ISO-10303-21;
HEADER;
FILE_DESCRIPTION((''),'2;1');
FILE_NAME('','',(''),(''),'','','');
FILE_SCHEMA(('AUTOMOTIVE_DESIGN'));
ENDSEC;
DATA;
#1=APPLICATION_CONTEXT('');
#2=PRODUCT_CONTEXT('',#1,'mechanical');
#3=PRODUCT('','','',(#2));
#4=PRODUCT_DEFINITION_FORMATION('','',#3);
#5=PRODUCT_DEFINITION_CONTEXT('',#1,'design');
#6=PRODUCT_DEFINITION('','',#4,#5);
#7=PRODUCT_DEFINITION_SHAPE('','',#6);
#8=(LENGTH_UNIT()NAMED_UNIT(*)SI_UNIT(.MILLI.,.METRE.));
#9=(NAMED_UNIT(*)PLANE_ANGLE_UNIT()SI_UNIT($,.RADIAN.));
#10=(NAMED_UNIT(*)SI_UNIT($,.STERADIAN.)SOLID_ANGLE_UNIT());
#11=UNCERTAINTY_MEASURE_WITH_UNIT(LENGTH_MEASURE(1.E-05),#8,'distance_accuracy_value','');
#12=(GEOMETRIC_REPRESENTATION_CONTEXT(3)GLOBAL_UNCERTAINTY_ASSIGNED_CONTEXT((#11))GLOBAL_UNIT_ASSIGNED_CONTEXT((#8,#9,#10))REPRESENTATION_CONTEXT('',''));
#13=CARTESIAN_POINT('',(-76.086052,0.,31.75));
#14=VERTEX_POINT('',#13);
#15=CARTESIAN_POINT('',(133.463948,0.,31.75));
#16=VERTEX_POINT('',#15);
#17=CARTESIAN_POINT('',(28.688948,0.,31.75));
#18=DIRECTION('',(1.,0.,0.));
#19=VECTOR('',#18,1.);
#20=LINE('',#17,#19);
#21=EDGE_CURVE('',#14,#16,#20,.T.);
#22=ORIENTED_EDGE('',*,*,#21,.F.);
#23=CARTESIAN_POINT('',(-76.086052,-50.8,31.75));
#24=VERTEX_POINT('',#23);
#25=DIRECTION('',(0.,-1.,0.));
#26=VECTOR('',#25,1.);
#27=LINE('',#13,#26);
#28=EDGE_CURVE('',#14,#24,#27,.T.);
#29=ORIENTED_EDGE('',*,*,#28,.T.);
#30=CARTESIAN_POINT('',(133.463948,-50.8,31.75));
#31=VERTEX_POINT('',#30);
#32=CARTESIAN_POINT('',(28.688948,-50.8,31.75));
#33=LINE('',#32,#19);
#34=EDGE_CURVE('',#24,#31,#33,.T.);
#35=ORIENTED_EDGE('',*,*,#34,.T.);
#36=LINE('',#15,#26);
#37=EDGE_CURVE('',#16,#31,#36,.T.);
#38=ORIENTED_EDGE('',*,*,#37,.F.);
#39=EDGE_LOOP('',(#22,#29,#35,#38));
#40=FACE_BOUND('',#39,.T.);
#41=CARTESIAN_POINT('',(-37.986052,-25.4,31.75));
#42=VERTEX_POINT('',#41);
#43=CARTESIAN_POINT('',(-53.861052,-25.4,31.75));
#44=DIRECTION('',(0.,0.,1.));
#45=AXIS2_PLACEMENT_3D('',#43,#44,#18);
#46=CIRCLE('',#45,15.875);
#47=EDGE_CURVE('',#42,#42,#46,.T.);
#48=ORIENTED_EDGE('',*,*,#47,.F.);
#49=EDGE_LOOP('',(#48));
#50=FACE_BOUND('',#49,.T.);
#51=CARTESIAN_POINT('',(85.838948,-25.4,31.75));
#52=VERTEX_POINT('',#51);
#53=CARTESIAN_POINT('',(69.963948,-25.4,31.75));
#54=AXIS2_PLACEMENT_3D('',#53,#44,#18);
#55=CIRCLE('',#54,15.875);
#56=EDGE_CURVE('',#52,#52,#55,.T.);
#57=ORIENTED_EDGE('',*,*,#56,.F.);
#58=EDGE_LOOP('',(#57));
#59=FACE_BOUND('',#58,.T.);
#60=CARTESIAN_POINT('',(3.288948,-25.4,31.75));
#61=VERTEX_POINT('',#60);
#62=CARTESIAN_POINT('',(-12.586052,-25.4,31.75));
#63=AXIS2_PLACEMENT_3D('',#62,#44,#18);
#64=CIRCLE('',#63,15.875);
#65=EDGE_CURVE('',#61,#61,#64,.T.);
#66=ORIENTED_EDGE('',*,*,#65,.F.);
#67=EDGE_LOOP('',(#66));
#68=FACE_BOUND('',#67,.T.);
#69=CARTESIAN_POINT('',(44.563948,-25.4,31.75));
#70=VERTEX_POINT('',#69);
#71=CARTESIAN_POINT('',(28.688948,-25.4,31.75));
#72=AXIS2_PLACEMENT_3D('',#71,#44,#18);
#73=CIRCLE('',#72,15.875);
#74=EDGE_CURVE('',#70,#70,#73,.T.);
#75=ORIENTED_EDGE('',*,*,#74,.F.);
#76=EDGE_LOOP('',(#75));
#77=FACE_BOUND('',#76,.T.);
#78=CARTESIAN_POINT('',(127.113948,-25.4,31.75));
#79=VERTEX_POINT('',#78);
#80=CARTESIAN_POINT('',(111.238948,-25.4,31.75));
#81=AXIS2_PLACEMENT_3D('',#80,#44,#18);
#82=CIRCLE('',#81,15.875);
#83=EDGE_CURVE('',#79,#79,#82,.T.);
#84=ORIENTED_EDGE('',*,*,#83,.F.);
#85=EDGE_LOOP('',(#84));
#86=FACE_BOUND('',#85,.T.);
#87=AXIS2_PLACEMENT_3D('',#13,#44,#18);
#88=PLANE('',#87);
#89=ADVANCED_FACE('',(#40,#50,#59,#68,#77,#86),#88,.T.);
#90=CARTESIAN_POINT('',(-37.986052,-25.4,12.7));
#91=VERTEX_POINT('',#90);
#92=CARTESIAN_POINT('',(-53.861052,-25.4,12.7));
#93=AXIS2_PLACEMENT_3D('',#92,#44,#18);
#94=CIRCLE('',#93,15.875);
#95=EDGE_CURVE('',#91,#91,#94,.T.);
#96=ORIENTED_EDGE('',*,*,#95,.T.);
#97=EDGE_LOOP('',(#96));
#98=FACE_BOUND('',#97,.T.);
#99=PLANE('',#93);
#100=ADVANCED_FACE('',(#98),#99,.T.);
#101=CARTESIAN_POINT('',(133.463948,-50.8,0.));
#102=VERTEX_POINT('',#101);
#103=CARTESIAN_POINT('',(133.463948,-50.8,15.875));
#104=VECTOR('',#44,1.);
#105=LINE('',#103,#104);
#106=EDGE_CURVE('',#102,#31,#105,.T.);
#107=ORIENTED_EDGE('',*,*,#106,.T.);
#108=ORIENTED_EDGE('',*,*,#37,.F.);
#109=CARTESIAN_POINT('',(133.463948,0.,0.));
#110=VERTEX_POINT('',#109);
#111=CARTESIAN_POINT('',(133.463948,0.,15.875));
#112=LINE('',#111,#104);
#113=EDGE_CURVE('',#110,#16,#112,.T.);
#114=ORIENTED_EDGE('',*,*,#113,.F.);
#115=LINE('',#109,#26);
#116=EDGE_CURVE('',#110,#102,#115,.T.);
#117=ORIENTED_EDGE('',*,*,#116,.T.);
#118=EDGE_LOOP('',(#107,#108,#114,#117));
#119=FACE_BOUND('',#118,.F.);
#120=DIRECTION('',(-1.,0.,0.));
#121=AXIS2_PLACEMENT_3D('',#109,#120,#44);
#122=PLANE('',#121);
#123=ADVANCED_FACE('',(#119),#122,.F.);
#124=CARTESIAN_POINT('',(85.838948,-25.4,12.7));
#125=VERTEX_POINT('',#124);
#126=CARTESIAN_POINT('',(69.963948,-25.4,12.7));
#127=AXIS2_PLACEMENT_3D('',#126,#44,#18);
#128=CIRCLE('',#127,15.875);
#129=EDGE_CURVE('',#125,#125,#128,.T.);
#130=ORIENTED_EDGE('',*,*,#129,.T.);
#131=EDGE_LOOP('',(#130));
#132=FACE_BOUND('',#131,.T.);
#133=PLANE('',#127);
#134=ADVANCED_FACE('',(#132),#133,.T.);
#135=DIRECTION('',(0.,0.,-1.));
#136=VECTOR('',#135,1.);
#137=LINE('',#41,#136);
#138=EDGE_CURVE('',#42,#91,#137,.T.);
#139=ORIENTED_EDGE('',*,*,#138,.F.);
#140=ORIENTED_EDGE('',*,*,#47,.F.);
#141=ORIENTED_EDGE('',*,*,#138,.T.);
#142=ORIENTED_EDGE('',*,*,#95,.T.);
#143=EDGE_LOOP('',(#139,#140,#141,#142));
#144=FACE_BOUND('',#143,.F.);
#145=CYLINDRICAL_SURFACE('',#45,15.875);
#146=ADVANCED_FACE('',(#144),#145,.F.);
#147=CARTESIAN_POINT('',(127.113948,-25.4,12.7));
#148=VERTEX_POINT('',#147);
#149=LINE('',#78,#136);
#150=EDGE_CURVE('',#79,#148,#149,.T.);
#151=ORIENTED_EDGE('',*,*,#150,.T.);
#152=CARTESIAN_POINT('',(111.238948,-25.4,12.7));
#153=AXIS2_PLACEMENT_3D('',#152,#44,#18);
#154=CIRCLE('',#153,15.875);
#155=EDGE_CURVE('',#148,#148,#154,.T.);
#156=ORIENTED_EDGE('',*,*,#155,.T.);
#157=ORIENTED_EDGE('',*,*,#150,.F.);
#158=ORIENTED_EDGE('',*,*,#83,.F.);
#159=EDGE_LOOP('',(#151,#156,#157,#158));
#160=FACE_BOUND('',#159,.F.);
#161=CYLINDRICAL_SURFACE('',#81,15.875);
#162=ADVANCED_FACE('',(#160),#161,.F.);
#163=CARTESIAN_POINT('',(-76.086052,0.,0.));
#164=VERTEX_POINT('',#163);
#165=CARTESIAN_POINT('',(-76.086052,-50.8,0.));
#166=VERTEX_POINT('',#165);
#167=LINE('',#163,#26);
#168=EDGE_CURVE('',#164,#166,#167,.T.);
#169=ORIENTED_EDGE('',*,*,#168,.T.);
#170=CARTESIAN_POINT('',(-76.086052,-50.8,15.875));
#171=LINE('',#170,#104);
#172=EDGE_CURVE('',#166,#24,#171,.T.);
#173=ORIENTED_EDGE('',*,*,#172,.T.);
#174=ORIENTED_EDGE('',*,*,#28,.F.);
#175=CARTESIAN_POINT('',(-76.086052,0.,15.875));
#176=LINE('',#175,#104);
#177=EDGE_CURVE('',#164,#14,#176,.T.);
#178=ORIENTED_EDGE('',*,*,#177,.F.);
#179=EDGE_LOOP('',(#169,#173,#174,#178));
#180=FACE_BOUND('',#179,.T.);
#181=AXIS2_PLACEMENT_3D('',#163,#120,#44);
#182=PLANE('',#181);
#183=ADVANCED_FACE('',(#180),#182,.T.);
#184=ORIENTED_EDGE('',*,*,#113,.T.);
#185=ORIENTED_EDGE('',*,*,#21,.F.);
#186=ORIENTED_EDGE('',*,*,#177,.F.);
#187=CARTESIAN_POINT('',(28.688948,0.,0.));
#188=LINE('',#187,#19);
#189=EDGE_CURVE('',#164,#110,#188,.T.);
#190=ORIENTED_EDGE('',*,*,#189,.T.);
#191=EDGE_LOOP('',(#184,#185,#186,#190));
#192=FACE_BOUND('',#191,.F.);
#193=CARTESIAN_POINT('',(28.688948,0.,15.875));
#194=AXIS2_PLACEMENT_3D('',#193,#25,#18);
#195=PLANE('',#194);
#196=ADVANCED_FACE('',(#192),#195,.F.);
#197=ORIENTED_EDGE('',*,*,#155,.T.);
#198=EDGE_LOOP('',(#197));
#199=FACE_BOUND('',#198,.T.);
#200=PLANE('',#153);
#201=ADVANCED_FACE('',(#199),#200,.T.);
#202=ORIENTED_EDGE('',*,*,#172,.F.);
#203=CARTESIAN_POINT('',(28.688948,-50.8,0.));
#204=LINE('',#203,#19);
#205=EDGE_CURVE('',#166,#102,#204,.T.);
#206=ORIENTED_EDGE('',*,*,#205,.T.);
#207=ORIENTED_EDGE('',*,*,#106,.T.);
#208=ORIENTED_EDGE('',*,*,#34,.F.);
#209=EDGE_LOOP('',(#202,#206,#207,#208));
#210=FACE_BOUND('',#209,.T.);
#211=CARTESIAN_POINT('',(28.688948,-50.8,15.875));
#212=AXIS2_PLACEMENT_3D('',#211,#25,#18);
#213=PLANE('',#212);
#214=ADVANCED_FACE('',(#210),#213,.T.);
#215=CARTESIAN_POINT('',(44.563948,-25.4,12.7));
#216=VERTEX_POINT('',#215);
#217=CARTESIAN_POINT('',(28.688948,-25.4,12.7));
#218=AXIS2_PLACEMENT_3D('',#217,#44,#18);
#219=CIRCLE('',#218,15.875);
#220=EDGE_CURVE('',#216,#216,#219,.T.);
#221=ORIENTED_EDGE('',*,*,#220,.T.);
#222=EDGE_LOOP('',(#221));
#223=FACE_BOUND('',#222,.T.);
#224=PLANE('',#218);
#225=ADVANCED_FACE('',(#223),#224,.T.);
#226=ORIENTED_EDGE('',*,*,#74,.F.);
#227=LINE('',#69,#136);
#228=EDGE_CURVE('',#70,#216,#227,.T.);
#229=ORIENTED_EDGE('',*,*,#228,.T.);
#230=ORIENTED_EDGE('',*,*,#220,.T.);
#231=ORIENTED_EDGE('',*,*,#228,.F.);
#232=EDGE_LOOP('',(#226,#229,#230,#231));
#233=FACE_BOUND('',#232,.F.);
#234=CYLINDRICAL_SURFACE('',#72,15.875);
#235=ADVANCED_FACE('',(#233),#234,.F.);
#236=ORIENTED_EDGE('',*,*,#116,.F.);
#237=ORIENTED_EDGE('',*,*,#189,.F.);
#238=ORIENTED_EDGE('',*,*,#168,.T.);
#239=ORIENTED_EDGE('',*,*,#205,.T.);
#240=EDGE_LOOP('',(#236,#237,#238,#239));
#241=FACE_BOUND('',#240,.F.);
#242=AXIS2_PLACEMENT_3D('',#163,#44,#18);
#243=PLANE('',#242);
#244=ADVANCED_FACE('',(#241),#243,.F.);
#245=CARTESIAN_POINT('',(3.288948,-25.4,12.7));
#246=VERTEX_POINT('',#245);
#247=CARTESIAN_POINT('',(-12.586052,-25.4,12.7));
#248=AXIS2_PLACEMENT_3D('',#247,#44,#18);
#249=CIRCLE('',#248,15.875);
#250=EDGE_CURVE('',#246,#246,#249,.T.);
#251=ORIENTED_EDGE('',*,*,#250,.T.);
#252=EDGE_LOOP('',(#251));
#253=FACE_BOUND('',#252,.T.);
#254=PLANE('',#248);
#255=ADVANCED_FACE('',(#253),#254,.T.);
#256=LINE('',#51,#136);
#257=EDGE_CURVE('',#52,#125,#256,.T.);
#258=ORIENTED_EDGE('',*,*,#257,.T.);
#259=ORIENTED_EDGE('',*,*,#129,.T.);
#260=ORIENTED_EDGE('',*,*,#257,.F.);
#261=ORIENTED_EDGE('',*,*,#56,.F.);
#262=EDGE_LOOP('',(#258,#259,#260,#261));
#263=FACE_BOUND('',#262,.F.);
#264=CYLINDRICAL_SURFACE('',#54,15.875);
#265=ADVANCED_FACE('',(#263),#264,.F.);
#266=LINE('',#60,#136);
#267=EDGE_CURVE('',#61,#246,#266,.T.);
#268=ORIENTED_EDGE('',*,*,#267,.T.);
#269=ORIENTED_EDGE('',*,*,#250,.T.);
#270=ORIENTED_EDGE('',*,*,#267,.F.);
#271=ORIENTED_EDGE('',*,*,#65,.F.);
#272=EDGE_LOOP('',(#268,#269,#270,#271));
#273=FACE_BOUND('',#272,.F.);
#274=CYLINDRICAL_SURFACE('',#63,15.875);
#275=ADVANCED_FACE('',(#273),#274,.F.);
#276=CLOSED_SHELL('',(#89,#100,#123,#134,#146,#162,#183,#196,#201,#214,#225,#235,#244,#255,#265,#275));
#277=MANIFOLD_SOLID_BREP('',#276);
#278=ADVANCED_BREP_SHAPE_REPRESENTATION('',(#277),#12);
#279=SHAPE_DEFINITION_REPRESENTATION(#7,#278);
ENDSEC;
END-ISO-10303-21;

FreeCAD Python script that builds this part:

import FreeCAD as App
import Part
import Sketcher
from FreeCAD import Vector
Q = App.Units.Quantity


def add_polygon(sketch, points):
    """Adds a closed chain of lines whose ends are joined by coincident constraints."""
    first, n = sketch.GeometryCount, len(points)
    for a, b in zip(points, points[1:] + points[:1]):
        sketch.addGeometry(Part.LineSegment(App.Vector(*a, 0), App.Vector(*b, 0)), False)
    for i in range(n):
        sketch.addConstraint(Sketcher.Constraint("Coincident", first + i, 2, first + (i + 1) % n, 1))

doc = App.newDocument("Part")
body = doc.addObject("PartDesign::Body", "Body")

sketch1 = body.newObject("Sketcher::SketchObject", "Sketch")
sketch1.AttachmentSupport = (doc.getObject("XZ_Plane"), [""])
sketch1.MapMode = "FlatFace"
add_polygon(sketch1, [(-76.086052, 31.75), (-76.086052, 0), (133.463948, 0), (133.463948, 31.75)])
sketch1.addConstraint([
    Sketcher.Constraint("Vertical", 0),
    Sketcher.Constraint("Horizontal", 1),
    Sketcher.Constraint("Vertical", 2),
    Sketcher.Constraint("Horizontal", 3),
    Sketcher.Constraint("PointOnObject", 0, 2, -1),
    Sketcher.Constraint("DistanceX", 1, 1, 1, 2, Q("8.25 in")),
    Sketcher.Constraint("DistanceY", 0, 2, 0, 1, Q("1.25 in")),
    Sketcher.Constraint("DistanceX", 0, 2, -1, 1, Q("76.086052 mm")),
])
pad1 = body.newObject("PartDesign::Pad", "Pad")
pad1.Profile = sketch1
pad1.Length = Q("2 in")

sketch2 = body.newObject("Sketcher::SketchObject", "Sketch001")
sketch2.AttachmentSupport = (doc.getObject("XY_Plane"), [""])
sketch2.MapMode = "FlatFace"
sketch2.AttachmentOffset = App.Placement(Vector(0, 0, 1.25 * 25.4), App.Rotation())
sketch2.addGeometry([
    Part.Circle(Vector(-53.861052, -25.4, 0), Vector(0, 0, 1), 15.875),
    Part.Circle(Vector(-12.586052, -25.4, 0), Vector(0, 0, 1), 15.875),
    Part.Circle(Vector(28.688948, -25.4, 0), Vector(0, 0, 1), 15.875),
    Part.Circle(Vector(69.963948, -25.4, 0), Vector(0, 0, 1), 15.875),
    Part.Circle(Vector(111.238948, -25.4, 0), Vector(0, 0, 1), 15.875),
], False)
sketch2.addConstraint([
    Sketcher.Constraint("Equal", 0, 1),
    Sketcher.Constraint("Equal", 1, 2),
    Sketcher.Constraint("Equal", 2, 3),
    Sketcher.Constraint("Equal", 3, 4),
    Sketcher.Constraint("Horizontal", 0, 3, 1, 3),
    Sketcher.Constraint("Horizontal", 1, 3, 2, 3),
    Sketcher.Constraint("Horizontal", 2, 3, 3, 3),
    Sketcher.Constraint("Horizontal", 3, 3, 4, 3),
    Sketcher.Constraint("Diameter", 0, Q("1.25 in")),
    Sketcher.Constraint("DistanceY", 0, 3, -1, 1, Q("1 in")),
    Sketcher.Constraint("DistanceX", 0, 3, 4, 3, Q("6.5 in")),
    Sketcher.Constraint("DistanceX", 0, 3, 2, 3, Q("3.25 in")),
    Sketcher.Constraint("DistanceX", 1, 3, 3, 3, Q("3.25 in")),
    Sketcher.Constraint("DistanceX", 0, 3, 1, 3, Q("1.625 in")),
    Sketcher.Constraint("DistanceX", -1, 1, 2, 3, Q("28.688948 mm")),
])
pocket1 = body.newObject("PartDesign::Pocket", "Pocket")
pocket1.Profile = sketch2
pocket1.Length = Q("0.75 in")

doc.recompute()
